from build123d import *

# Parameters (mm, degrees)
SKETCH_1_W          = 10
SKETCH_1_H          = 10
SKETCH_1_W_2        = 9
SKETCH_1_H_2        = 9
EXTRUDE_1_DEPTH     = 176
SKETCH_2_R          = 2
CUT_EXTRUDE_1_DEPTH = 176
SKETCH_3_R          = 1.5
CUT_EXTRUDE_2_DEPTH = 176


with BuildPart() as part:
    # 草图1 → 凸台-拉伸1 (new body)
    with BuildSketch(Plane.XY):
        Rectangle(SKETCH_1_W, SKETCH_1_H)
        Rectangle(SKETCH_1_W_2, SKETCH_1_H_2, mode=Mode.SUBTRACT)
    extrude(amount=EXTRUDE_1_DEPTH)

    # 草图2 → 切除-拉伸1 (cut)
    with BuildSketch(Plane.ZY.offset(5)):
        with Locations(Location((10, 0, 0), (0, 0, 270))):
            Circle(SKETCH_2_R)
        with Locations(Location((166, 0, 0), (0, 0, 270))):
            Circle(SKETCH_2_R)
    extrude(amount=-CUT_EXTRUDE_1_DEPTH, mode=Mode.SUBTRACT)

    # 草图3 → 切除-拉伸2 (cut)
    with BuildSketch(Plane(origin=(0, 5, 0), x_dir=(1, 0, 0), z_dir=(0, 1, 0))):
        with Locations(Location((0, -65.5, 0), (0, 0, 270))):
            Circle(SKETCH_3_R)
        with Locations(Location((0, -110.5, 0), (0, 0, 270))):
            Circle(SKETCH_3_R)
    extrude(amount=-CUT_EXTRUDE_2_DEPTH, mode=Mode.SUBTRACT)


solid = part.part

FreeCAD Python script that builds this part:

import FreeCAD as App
import Part
import Sketcher


def add_polygon(sketch, points):
    """Adds a closed chain of lines whose ends are joined by coincident constraints."""
    first, n = sketch.GeometryCount, len(points)
    for a, b in zip(points, points[1:] + points[:1]):
        sketch.addGeometry(Part.LineSegment(App.Vector(*a, 0), App.Vector(*b, 0)), False)
    for i in range(n):
        sketch.addConstraint(Sketcher.Constraint("Coincident", first + i, 2, first + (i + 1) % n, 1))

doc = App.newDocument("Part")
params = doc.addObject("Spreadsheet::Sheet", "Params")
for row, (alias, value) in enumerate([
    ("sketch1_width", "10 mm"),
    ("sketch1_width2", "9 mm"),
    ("pad1_length", "176 mm"),
    ("sketch2_diameter", "4 mm"),
    ("pocket1_length", "176 mm"),
    ("sketch3_diameter", "3 mm"),
    ("pocket2_length", "176 mm"),
], start=1):
    params.set(f"A{row}", alias)
    params.set(f"B{row}", "=" + value)
    params.setAlias(f"B{row}", alias)

body = doc.addObject("PartDesign::Body", "Body")

# Sketch on XY plane
sketch1 = body.newObject("Sketcher::SketchObject", "Sketch")
sketch1.AttachmentSupport = (doc.getObject("XY_Plane"), [""])
sketch1.MapMode = "FlatFace"
add_polygon(sketch1, [(-5, 5), (-5, -5), (5, -5), (5, 5)])  # lines 0-3
add_polygon(sketch1, [(4, -4), (-4, -4), (-4, 4), (4, 4)])  # lines 4-7
sketch1.addConstraint(Sketcher.Constraint("Vertical", 0))
sketch1.addConstraint(Sketcher.Constraint("Horizontal", 1))
sketch1.addConstraint(Sketcher.Constraint("Vertical", 2))
sketch1.addConstraint(Sketcher.Constraint("Horizontal", 3))
sketch1.addConstraint(Sketcher.Constraint("Horizontal", 4))
sketch1.addConstraint(Sketcher.Constraint("Vertical", 5))
sketch1.addConstraint(Sketcher.Constraint("Horizontal", 6))
sketch1.addConstraint(Sketcher.Constraint("Vertical", 7))
sketch1.addConstraint(Sketcher.Constraint("Symmetric", 0, 2, 2, 2, -1, 1))
sketch1.addConstraint(Sketcher.Constraint("Symmetric", 4, 2, 6, 2, -1, 1))
sketch1.addConstraint(Sketcher.Constraint("Equal", 3, 0))
sketch1.addConstraint(Sketcher.Constraint("Equal", 6, 5))
sketch1.addConstraint(Sketcher.Constraint("DistanceX", 1, 1, 1, 2, 10.0))
sketch1.addConstraint(Sketcher.Constraint("DistanceX", 4, 2, 4, 1, 9.0))
sketch1.setExpression("Constraints[20]", "Params.sketch1_width")
sketch1.setExpression("Constraints[21]", "Params.sketch1_width2")
pad1 = body.newObject("PartDesign::Pad", "Pad")
pad1.Profile = sketch1
pad1.setExpression("Length", "Params.pad1_length")

# Sketch on YZ plane
sketch2 = body.newObject("Sketcher::SketchObject", "Sketch001")
sketch2.AttachmentSupport = (doc.getObject("YZ_Plane"), [""])
sketch2.MapMode = "FlatFace"
sketch2.AttachmentOffset = App.Placement(App.Vector(0, 0, -5), App.Rotation())
sketch2.addGeometry(Part.Circle(App.Vector(0, 10, 0), App.Vector(0, 0, 1), 2), False)
sketch2.addGeometry(Part.Circle(App.Vector(0, 166, 0), App.Vector(0, 0, 1), 2), False)
sketch2.addConstraint(Sketcher.Constraint("Equal", 0, 1))
sketch2.addConstraint(Sketcher.Constraint("PointOnObject", 0, 3, -2))
sketch2.addConstraint(Sketcher.Constraint("PointOnObject", 1, 3, -2))
sketch2.addConstraint(Sketcher.Constraint("Diameter", 0, 4.0))
sketch2.addConstraint(Sketcher.Constraint("DistanceY", -1, 1, 0, 3, 10.0))
sketch2.addConstraint(Sketcher.Constraint("DistanceY", -1, 1, 1, 3, 166.0))
sketch2.setExpression("Constraints[3]", "Params.sketch2_diameter")
pocket1 = body.newObject("PartDesign::Pocket", "Pocket")
pocket1.Profile = sketch2
pocket1.setExpression("Length", "Params.pocket1_length")
pocket1.Reversed = True

# Sketch on XZ plane
sketch3 = body.newObject("Sketcher::SketchObject", "Sketch002")
sketch3.AttachmentSupport = (doc.getObject("XZ_Plane"), [""])
sketch3.MapMode = "FlatFace"
sketch3.AttachmentOffset = App.Placement(App.Vector(0, 0, -5), App.Rotation())
sketch3.addGeometry(Part.Circle(App.Vector(0, 65.5, 0), App.Vector(0, 0, 1), 1.5), False)
sketch3.addGeometry(Part.Circle(App.Vector(0, 110.5, 0), App.Vector(0, 0, 1), 1.5), False)
sketch3.addConstraint(Sketcher.Constraint("Equal", 0, 1))
sketch3.addConstraint(Sketcher.Constraint("PointOnObject", 0, 3, -2))
sketch3.addConstraint(Sketcher.Constraint("PointOnObject", 1, 3, -2))
sketch3.addConstraint(Sketcher.Constraint("Diameter", 0, 3.0))
sketch3.addConstraint(Sketcher.Constraint("DistanceY", 0, 3, 1, 3, 45.0))
sketch3.addConstraint(Sketcher.Constraint("DistanceY", -1, 1, 0, 3, 65.5))
sketch3.setExpression("Constraints[3]", "Params.sketch3_diameter")
pocket2 = body.newObject("PartDesign::Pocket", "Pocket001")
pocket2.Profile = sketch3
pocket2.setExpression("Length", "Params.pocket2_length")
pocket2.Reversed = True

doc.recompute()
